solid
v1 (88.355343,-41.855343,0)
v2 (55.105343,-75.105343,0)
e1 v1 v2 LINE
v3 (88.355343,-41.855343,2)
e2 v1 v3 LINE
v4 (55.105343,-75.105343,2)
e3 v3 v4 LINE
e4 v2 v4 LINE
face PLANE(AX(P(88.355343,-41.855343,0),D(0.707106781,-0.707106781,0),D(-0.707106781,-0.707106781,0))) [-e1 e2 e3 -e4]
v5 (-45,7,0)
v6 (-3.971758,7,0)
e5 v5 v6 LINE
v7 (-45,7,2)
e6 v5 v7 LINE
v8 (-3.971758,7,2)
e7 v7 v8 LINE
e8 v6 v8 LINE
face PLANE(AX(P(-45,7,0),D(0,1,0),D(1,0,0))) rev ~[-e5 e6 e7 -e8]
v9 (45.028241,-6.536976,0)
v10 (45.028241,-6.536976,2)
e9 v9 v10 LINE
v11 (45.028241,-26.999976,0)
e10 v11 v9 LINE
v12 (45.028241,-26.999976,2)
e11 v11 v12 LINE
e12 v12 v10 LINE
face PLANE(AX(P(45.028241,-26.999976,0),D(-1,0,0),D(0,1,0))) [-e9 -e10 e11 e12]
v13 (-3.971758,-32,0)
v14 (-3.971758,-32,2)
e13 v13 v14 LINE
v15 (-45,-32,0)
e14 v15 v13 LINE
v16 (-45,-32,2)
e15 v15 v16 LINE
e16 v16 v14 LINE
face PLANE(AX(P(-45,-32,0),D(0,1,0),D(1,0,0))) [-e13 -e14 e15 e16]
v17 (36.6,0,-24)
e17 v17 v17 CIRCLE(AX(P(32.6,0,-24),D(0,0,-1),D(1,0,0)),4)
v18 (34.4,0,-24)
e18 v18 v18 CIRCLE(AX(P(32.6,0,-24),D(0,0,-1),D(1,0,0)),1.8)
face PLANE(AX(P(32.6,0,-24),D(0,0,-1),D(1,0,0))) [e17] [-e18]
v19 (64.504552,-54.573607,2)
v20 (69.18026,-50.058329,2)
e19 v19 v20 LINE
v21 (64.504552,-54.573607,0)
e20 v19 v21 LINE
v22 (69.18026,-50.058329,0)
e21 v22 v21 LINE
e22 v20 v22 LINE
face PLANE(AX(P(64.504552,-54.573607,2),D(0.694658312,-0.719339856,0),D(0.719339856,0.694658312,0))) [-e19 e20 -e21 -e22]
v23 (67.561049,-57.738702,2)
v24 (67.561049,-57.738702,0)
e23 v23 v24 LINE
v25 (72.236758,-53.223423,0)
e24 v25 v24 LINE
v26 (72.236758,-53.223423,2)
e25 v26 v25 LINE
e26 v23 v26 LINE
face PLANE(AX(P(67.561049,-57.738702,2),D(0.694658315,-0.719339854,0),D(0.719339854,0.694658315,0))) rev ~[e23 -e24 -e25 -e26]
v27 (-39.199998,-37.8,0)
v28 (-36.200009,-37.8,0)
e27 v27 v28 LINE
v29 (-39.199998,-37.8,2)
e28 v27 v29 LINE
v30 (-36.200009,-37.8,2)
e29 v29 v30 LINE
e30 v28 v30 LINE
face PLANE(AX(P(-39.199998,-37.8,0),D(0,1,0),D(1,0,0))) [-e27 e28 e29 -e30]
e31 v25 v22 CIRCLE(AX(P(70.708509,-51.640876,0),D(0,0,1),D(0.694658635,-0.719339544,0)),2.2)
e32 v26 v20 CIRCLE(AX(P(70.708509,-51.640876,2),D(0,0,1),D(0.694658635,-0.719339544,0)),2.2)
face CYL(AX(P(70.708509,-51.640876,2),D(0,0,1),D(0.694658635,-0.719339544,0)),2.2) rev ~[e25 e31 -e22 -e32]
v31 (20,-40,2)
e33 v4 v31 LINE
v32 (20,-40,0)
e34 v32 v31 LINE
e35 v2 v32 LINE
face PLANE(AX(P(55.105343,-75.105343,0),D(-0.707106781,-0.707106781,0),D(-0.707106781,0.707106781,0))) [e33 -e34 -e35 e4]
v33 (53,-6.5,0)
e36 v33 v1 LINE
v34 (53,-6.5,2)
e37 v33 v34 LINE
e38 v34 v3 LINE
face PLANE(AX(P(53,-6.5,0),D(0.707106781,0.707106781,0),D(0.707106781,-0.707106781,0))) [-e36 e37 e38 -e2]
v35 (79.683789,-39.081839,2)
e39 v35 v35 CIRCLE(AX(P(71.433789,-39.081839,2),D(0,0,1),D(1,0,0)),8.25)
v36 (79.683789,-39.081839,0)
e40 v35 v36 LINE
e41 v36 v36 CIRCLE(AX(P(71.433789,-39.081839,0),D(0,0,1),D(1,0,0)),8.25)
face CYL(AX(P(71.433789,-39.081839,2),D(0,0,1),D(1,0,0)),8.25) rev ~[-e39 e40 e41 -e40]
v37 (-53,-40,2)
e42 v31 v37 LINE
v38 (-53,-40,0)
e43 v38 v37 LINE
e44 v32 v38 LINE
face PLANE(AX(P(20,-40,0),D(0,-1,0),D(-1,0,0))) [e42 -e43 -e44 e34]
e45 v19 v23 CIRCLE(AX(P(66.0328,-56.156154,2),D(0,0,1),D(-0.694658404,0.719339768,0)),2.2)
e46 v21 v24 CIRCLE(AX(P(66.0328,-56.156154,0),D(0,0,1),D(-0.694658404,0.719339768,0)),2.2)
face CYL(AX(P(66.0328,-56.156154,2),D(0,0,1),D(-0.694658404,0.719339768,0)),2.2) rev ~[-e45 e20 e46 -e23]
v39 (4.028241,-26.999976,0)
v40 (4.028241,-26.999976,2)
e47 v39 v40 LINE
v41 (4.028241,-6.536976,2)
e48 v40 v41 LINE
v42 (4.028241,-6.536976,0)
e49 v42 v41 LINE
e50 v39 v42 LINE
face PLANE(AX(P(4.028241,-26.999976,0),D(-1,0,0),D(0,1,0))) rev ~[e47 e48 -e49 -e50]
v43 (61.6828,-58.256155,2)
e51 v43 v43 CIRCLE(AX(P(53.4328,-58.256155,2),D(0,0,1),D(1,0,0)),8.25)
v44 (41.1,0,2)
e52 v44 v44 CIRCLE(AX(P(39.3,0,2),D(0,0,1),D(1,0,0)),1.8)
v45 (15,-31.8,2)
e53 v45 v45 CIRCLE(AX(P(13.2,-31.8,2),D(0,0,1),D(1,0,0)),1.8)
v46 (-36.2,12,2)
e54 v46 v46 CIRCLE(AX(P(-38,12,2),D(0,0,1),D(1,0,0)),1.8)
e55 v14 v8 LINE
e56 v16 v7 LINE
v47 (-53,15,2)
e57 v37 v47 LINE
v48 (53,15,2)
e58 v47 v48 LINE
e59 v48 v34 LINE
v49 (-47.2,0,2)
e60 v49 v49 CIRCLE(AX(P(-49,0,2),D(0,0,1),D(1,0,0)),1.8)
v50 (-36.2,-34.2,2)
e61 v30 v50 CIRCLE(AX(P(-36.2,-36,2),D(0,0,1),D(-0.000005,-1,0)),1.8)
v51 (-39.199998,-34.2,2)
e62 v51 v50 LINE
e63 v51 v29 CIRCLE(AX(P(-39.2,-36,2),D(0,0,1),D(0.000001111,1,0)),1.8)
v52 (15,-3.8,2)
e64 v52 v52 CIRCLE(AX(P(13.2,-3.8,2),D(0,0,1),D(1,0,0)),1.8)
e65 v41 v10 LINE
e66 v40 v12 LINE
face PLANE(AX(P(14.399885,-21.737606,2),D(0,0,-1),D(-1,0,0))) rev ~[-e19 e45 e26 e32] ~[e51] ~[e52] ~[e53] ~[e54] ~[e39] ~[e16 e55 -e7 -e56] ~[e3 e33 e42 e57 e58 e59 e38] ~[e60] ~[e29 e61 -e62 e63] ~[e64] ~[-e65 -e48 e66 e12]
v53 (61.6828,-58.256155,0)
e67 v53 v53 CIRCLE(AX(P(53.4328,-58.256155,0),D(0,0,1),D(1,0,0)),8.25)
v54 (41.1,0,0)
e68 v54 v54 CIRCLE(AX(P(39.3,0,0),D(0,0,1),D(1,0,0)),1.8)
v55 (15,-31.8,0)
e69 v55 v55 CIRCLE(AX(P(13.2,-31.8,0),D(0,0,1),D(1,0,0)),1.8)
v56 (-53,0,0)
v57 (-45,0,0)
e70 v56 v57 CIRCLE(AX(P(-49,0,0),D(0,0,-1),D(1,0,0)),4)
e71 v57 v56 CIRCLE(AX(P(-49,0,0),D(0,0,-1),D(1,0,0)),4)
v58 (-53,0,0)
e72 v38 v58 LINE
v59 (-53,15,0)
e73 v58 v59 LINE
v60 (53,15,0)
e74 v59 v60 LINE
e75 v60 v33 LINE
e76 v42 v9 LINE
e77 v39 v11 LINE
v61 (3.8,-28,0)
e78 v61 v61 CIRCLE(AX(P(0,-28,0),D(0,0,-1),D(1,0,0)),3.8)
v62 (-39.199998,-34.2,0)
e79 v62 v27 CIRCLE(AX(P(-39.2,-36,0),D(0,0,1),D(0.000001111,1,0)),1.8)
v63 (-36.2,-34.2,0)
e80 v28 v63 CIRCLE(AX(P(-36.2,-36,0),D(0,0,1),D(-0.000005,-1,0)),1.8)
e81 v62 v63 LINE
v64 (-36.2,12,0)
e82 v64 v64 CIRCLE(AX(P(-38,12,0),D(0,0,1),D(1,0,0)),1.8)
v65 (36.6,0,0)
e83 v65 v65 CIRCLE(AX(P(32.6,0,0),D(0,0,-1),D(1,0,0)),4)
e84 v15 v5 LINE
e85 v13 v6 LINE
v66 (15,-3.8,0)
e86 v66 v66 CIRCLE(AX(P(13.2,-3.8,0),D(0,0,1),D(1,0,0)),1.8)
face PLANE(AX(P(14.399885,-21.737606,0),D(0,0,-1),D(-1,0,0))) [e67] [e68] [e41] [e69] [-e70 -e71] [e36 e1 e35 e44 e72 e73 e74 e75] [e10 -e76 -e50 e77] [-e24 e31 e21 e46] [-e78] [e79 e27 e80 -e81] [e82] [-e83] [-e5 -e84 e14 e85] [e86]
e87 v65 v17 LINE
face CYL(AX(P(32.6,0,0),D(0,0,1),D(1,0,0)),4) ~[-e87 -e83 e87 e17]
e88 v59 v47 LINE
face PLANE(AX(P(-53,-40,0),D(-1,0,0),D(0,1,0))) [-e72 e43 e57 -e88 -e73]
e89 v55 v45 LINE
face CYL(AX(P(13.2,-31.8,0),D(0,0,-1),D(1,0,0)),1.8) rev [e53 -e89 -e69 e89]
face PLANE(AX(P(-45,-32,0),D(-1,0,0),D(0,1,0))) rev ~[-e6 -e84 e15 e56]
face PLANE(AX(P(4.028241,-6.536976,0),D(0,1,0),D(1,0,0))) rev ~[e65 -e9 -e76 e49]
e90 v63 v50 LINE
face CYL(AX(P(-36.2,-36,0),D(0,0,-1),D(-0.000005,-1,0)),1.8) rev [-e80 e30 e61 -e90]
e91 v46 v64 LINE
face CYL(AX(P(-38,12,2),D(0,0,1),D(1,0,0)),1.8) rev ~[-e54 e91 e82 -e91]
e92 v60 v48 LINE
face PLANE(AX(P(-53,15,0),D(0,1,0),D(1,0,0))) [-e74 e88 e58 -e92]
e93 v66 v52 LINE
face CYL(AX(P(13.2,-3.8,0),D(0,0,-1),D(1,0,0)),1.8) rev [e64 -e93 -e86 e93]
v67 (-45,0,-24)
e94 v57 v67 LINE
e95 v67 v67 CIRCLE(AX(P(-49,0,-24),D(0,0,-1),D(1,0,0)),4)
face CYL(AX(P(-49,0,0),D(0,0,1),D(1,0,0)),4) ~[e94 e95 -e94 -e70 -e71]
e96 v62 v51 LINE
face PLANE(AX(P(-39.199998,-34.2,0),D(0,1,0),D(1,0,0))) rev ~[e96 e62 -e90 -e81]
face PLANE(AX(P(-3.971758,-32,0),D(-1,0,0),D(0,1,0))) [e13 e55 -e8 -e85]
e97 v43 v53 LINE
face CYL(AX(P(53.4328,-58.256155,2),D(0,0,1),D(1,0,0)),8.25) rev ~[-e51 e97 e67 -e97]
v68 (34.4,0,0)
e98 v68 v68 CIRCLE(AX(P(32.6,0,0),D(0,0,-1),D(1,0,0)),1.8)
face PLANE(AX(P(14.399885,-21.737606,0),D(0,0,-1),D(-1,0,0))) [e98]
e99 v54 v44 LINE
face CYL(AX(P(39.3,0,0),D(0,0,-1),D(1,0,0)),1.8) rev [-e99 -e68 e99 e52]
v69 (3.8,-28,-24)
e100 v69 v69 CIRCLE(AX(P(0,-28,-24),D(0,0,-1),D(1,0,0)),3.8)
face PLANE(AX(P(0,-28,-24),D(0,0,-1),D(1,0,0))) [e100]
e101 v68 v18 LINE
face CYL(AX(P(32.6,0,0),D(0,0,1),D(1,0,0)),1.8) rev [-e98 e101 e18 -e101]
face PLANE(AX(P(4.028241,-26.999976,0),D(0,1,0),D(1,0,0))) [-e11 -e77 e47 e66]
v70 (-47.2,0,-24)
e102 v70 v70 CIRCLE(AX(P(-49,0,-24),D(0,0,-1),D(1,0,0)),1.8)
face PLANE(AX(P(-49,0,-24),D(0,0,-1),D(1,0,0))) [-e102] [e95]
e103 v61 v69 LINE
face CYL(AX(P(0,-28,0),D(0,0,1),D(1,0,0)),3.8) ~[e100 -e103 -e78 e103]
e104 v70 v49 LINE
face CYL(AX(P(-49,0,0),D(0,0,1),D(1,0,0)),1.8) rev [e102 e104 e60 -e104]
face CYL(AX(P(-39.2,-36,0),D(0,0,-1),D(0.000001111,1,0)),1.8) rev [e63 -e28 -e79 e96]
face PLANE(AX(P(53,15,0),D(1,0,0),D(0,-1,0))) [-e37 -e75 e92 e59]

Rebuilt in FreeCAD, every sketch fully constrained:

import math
import FreeCAD as App
import Part
import Sketcher
from FreeCAD import Vector
Q = App.Units.Quantity

doc = App.newDocument("Part")
params = doc.addObject("Spreadsheet::Sheet", "Params")
for row, (alias, value) in enumerate([
    ("sketch1_diameter", "3.6 mm"),
    ("sketch1_width", "106 mm"),
    ("sketch1_width2", "73 mm"),
    ("sketch1_width3", "41 mm"),
    ("sketch1_height", "55 mm"),
    ("pad1_length", "2 mm"),
    ("sketch2_diameter", "8 mm"),
    ("sketch2_diameter2", "7.6 mm"),
    ("sketch2_diameter3", "3.6 mm"),
    ("pad2_length", "24 mm"),
    ("sketch3_diameter", "16.5 mm"),
    ("sketch3_radius", "2.2 mm"),
    ("sketch3_length", "6.5 mm"),
    ("pocket1_length", "5 mm"),
    ("sketch4_diameter", "3.6 mm"),
    ("pocket2_length", "5 mm"),
], start=1):
    params.set(f"A{row}", alias)
    params.set(f"B{row}", "=" + value)
    params.setAlias(f"B{row}", alias)

body = doc.addObject("PartDesign::Body", "Body")

# Sketch on XY plane
sketch1 = body.newObject("Sketcher::SketchObject", "Sketch")
sketch1.AttachmentSupport = (doc.getObject("XY_Plane"), [""])
sketch1.MapMode = "FlatFace"
sketch1.addGeometry(Part.LineSegment(Vector(53, 15, 0), Vector(-53, 15, 0)), False)
sketch1.addGeometry(Part.LineSegment(Vector(-53, 15, 0), Vector(-53, -40, 0)), False)
sketch1.addGeometry(Part.LineSegment(Vector(-53, -40, 0), Vector(20, -40, 0)), False)
sketch1.addGeometry(Part.LineSegment(Vector(20, -40, 0), Vector(55.1, -75.1, 0)), False)
sketch1.addGeometry(Part.LineSegment(Vector(55.1, -75.1, 0), Vector(88.4, -41.9, 0)), False)
sketch1.addGeometry(Part.LineSegment(Vector(88.4, -41.9, 0), Vector(53, -6.5, 0)), False)
sketch1.addGeometry(Part.LineSegment(Vector(53, -6.5, 0), Vector(53, 15, 0)), False)
sketch1.addGeometry(Part.Circle(Vector(13.2, -31.8, 0), Vector(0, 0, 1), 1.8), False)
sketch1.addGeometry(Part.LineSegment(Vector(4, -27, 0), Vector(4, -6.5, 0)), False)
sketch1.addGeometry(Part.LineSegment(Vector(4, -6.5, 0), Vector(45, -6.5, 0)), False)
sketch1.addGeometry(Part.LineSegment(Vector(45, -6.5, 0), Vector(45, -27, 0)), False)
sketch1.addGeometry(Part.LineSegment(Vector(45, -27, 0), Vector(4, -27, 0)), False)
sketch1.addGeometry(Part.LineSegment(Vector(-39.2, -34.2, 0), Vector(-36.2, -34.2, 0)), False)
sketch1.addGeometry(Part.ArcOfCircle(Part.Circle(Vector(-36.2, -36, 0), Vector(0, 0, 1), 1.8), math.radians(-90), math.radians(90)), False)
sketch1.addGeometry(Part.LineSegment(Vector(-36.2, -37.8, 0), Vector(-39.2, -37.8, 0)), False)
sketch1.addGeometry(Part.ArcOfCircle(Part.Circle(Vector(-39.2, -36, 0), Vector(0, 0, 1), 1.8), math.radians(90), math.radians(270)), False)
sketch1.addGeometry(Part.Circle(Vector(39.3, 0, 0), Vector(0, 0, 1), 1.8), False)
sketch1.addGeometry(Part.Circle(Vector(13.2, -3.8, 0), Vector(0, 0, 1), 1.8), False)
sketch1.addGeometry(Part.LineSegment(Vector(-45, -32, 0), Vector(-45, 7, 0)), False)
sketch1.addGeometry(Part.LineSegment(Vector(-45, 7, 0), Vector(-4, 7, 0)), False)
sketch1.addGeometry(Part.LineSegment(Vector(-4, 7, 0), Vector(-4, -32, 0)), False)
sketch1.addGeometry(Part.LineSegment(Vector(-4, -32, 0), Vector(-45, -32, 0)), False)
sketch1.addGeometry(Part.Circle(Vector(-49, 0, 0), Vector(0, 0, 1), 1.8), False)
sketch1.addConstraint(Sketcher.Constraint("Coincident", 0, 2, 1, 1))
sketch1.addConstraint(Sketcher.Constraint("Coincident", 1, 2, 2, 1))
sketch1.addConstraint(Sketcher.Constraint("Coincident", 2, 2, 3, 1))
sketch1.addConstraint(Sketcher.Constraint("Coincident", 3, 2, 4, 1))
sketch1.addConstraint(Sketcher.Constraint("Coincident", 4, 2, 5, 1))
sketch1.addConstraint(Sketcher.Constraint("Coincident", 5, 2, 6, 1))
sketch1.addConstraint(Sketcher.Constraint("Coincident", 6, 2, 0, 1))
sketch1.addConstraint(Sketcher.Constraint("Coincident", 8, 2, 9, 1))
sketch1.addConstraint(Sketcher.Constraint("Coincident", 9, 2, 10, 1))
sketch1.addConstraint(Sketcher.Constraint("Coincident", 10, 2, 11, 1))
sketch1.addConstraint(Sketcher.Constraint("Coincident", 11, 2, 8, 1))
sketch1.addConstraint(Sketcher.Constraint("Tangent", 12, 2, 13, 2))
sketch1.addConstraint(Sketcher.Constraint("Coincident", 13, 1, 14, 1))
sketch1.addConstraint(Sketcher.Constraint("Tangent", 14, 2, 15, 2))
sketch1.addConstraint(Sketcher.Constraint("Tangent", 15, 1, 12, 1))
sketch1.addConstraint(Sketcher.Constraint("Coincident", 18, 2, 19, 1))
sketch1.addConstraint(Sketcher.Constraint("Coincident", 19, 2, 20, 1))
sketch1.addConstraint(Sketcher.Constraint("Coincident", 20, 2, 21, 1))
sketch1.addConstraint(Sketcher.Constraint("Coincident", 21, 2, 18, 1))
sketch1.addConstraint(Sketcher.Constraint("Horizontal", 0))
sketch1.addConstraint(Sketcher.Constraint("Vertical", 1))
sketch1.addConstraint(Sketcher.Constraint("Horizontal", 2))
sketch1.addConstraint(Sketcher.Constraint("Vertical", 6))
sketch1.addConstraint(Sketcher.Constraint("Vertical", 8))
sketch1.addConstraint(Sketcher.Constraint("Horizontal", 9))
sketch1.addConstraint(Sketcher.Constraint("Vertical", 10))
sketch1.addConstraint(Sketcher.Constraint("Horizontal", 11))
sketch1.addConstraint(Sketcher.Constraint("Horizontal", 12))
sketch1.addConstraint(Sketcher.Constraint("Horizontal", 14))
sketch1.addConstraint(Sketcher.Constraint("Vertical", 18))
sketch1.addConstraint(Sketcher.Constraint("Horizontal", 19))
sketch1.addConstraint(Sketcher.Constraint("Vertical", 20))
sketch1.addConstraint(Sketcher.Constraint("Horizontal", 21))
sketch1.addConstraint(Sketcher.Constraint("Equal", 7, 13))
sketch1.addConstraint(Sketcher.Constraint("Equal", 15, 16))
sketch1.addConstraint(Sketcher.Constraint("Equal", 16, 17))
sketch1.addConstraint(Sketcher.Constraint("Equal", 17, 22))
sketch1.addConstraint(Sketcher.Constraint("PointOnObject", 16, 3, -1))
sketch1.addConstraint(Sketcher.Constraint("PointOnObject", 22, 3, -1))
sketch1.addConstraint(Sketcher.Constraint("Perpendicular", 3, 4))
sketch1.addConstraint(Sketcher.Constraint("Perpendicular", 4, 5))
sketch1.addConstraint(Sketcher.Constraint("Vertical", 7, 3, 17, 3))
sketch1.addConstraint(Sketcher.Constraint("Diameter", 7, 3.6))
sketch1.addConstraint(Sketcher.Constraint("DistanceX", 0, 2, 0, 1, 106.0))
sketch1.addConstraint(Sketcher.Constraint("DistanceX", 2, 1, 2, 2, 73.0))
sketch1.addConstraint(Sketcher.Constraint("DistanceX", 9, 1, 9, 2, 41.0))
sketch1.addConstraint(Sketcher.Constraint("DistanceY", 1, 2, 1, 1, 55.0))
sketch1.addConstraint(Sketcher.Constraint("DistanceY", 18, 1, 18, 2, 39.0))
sketch1.addConstraint(Sketcher.Constraint("Angle", 3, Q("-45 deg")))
sketch1.addConstraint(Sketcher.Constraint("DistanceY", 6, 1, 6, 2, 21.5))
sketch1.addConstraint(Sketcher.Constraint("DistanceY", 13, 3, -1, 1, 36.0))
sketch1.addConstraint(Sketcher.Constraint("DistanceX", 22, 3, -1, 1, 49.0))
sketch1.addConstraint(Sketcher.Constraint("DistanceX", 0, 2, -1, 1, 53.0))
sketch1.addConstraint(Sketcher.Constraint("DistanceY", -1, 1, 0, 2, 15.0))
sketch1.addConstraint(Sketcher.Constraint("DistanceX", 18, 2, -1, 1, 45.0))
sketch1.addConstraint(Sketcher.Constraint("DistanceY", -1, 1, 18, 2, 7.0))
sketch1.addConstraint(Sketcher.Constraint("DistanceX", 15, 3, 13, 3, 3.0))
sketch1.addConstraint(Sketcher.Constraint("DistanceY", 7, 3, 17, 3, 28.0))
sketch1.addConstraint(Sketcher.Constraint("DistanceX", 19, 2, 8, 2, 8.0))
sketch1.addConstraint(Sketcher.Constraint("DistanceX", -1, 1, 7, 3, 13.2))
sketch1.addConstraint(Sketcher.Constraint("DistanceY", 7, 3, -1, 1, 31.8))
sketch1.addConstraint(Sketcher.Constraint("DistanceX", 13, 3, -1, 1, 36.2))
sketch1.addConstraint(Sketcher.Constraint("DistanceX", -1, 1, 16, 3, 39.3))
sketch1.addConstraint(Sketcher.Constraint("DistanceY", 8, 1, 8, 2, 20.463))
sketch1.addConstraint(Sketcher.Constraint("DistanceX", 14, 2, 14, 1, 2.999989))
sketch1.addConstraint(Sketcher.Constraint("DistanceX", 19, 1, 19, 2, 41.028241))
sketch1.addConstraint(Sketcher.Constraint("Distance", 3, 49.646452))
sketch1.addConstraint(Sketcher.Constraint("DistanceY", 8, 2, -1, 1, 6.536976))
sketch1.setExpression("Constraints[42]", "Params.sketch1_diameter")
sketch1.setExpression("Constraints[43]", "Params.sketch1_width")
sketch1.setExpression("Constraints[44]", "Params.sketch1_width2")
sketch1.setExpression("Constraints[45]", "Params.sketch1_width3")
sketch1.setExpression("Constraints[46]", "Params.sketch1_height")
pad1 = body.newObject("PartDesign::Pad", "Pad")
pad1.Profile = sketch1
pad1.setExpression("Length", "Params.pad1_length")

# Sketch on XY plane
sketch2 = body.newObject("Sketcher::SketchObject", "Sketch001")
sketch2.AttachmentSupport = (doc.getObject("XY_Plane"), [""])
sketch2.MapMode = "FlatFace"
sketch2.addGeometry(Part.Circle(Vector(0, -28, 0), Vector(0, 0, 1), 3.8), False)
sketch2.addGeometry(Part.Circle(Vector(-49, 0, 0), Vector(0, 0, 1), 4), False)
sketch2.addGeometry(Part.Circle(Vector(-49, 0, 0), Vector(0, 0, 1), 1.8), False)
sketch2.addGeometry(Part.Circle(Vector(32.6, 0, 0), Vector(0, 0, 1), 4), False)
sketch2.addGeometry(Part.Circle(Vector(32.6, 0, 0), Vector(0, 0, 1), 1.8), False)
sketch2.addConstraint(Sketcher.Constraint("Coincident", 2, 3, 1, 3))
sketch2.addConstraint(Sketcher.Constraint("Coincident", 4, 3, 3, 3))
sketch2.addConstraint(Sketcher.Constraint("Equal", 1, 3))
sketch2.addConstraint(Sketcher.Constraint("Equal", 2, 4))
sketch2.addConstraint(Sketcher.Constraint("PointOnObject", 0, 3, -2))
sketch2.addConstraint(Sketcher.Constraint("PointOnObject", 1, 3, -1))
sketch2.addConstraint(Sketcher.Constraint("PointOnObject", 3, 3, -1))
sketch2.addConstraint(Sketcher.Constraint("Diameter", 1, 8.0))
sketch2.addConstraint(Sketcher.Constraint("Diameter", 0, 7.6))
sketch2.addConstraint(Sketcher.Constraint("Diameter", 2, 3.6))
sketch2.addConstraint(Sketcher.Constraint("DistanceY", 0, 3, -1, 1, 28.0))
sketch2.addConstraint(Sketcher.Constraint("DistanceX", 1, 3, -1, 1, 49.0))
sketch2.addConstraint(Sketcher.Constraint("DistanceX", -1, 1, 3, 3, 32.6))
sketch2.setExpression("Constraints[7]", "Params.sketch2_diameter")
sketch2.setExpression("Constraints[8]", "Params.sketch2_diameter2")
sketch2.setExpression("Constraints[9]", "Params.sketch2_diameter3")
pad2 = body.newObject("PartDesign::Pad", "Pad001")
pad2.Profile = sketch2
pad2.setExpression("Length", "Params.pad2_length")
pad2.Reversed = True

# Sketch on XY plane
sketch3 = body.newObject("Sketcher::SketchObject", "Sketch002")
sketch3.AttachmentSupport = (doc.getObject("XY_Plane"), [""])
sketch3.MapMode = "FlatFace"
sketch3.AttachmentOffset = App.Placement(Vector(0, 0, 2), App.Rotation())
sketch3.addGeometry(Part.Circle(Vector(53.4, -58.3, 0), Vector(0, 0, 1), 8.2), False)
sketch3.addGeometry(Part.Circle(Vector(71.4, -39.1, 0), Vector(0, 0, 1), 8.2), False)
sketch3.addGeometry(Part.ArcOfCircle(Part.Circle(Vector(66, -56.2, 0), Vector(0, 0, 1), 2.2), math.radians(134), math.radians(314)), False)
sketch3.addGeometry(Part.LineSegment(Vector(67.6, -57.7, 0), Vector(72.2, -53.2, 0)), False)
sketch3.addGeometry(Part.ArcOfCircle(Part.Circle(Vector(70.7, -51.6, 0), Vector(0, 0, 1), 2.2), math.radians(-46), math.radians(134)), False)
sketch3.addGeometry(Part.LineSegment(Vector(69.2, -50.1, 0), Vector(64.5, -54.6, 0)), False)
sketch3.addConstraint(Sketcher.Constraint("Tangent", 2, 2, 3, 1))
sketch3.addConstraint(Sketcher.Constraint("Tangent", 3, 2, 4, 1))
sketch3.addConstraint(Sketcher.Constraint("Tangent", 4, 2, 5, 1))
sketch3.addConstraint(Sketcher.Constraint("Tangent", 5, 2, 2, 1))
sketch3.addConstraint(Sketcher.Constraint("Equal", 0, 1))
sketch3.addConstraint(Sketcher.Constraint("Equal", 2, 4))
sketch3.addConstraint(Sketcher.Constraint("Diameter", 0, 16.5))
sketch3.addConstraint(Sketcher.Constraint("Radius", 2, 2.2))
sketch3.addConstraint(Sketcher.Constraint("Angle", 3, Q("43.999996 deg")))
sketch3.addConstraint(Sketcher.Constraint("Distance", 3, 6.5))
sketch3.addConstraint(Sketcher.Constraint("DistanceX", 0, 3, 2, 3, 12.6))
sketch3.addConstraint(Sketcher.Constraint("DistanceY", 0, 3, 2, 3, 2.100001))
sketch3.addConstraint(Sketcher.Constraint("DistanceX", -1, 1, 0, 3, 53.4328))
sketch3.addConstraint(Sketcher.Constraint("DistanceY", 2, 2, -1, 1, 57.738702))
sketch3.addConstraint(Sketcher.Constraint("DistanceX", -1, 1, 1, 3, 71.433789))
sketch3.addConstraint(Sketcher.Constraint("DistanceY", 1, 3, -1, 1, 39.081839))
sketch3.setExpression("Constraints[6]", "Params.sketch3_diameter")
sketch3.setExpression("Constraints[7]", "Params.sketch3_radius")
sketch3.setExpression("Constraints[9]", "Params.sketch3_length")
pocket1 = body.newObject("PartDesign::Pocket", "Pocket")
pocket1.Profile = sketch3
pocket1.setExpression("Length", "Params.pocket1_length")

# Sketch on XY plane
sketch4 = body.newObject("Sketcher::SketchObject", "Sketch003")
sketch4.AttachmentSupport = (doc.getObject("XY_Plane"), [""])
sketch4.MapMode = "FlatFace"
sketch4.AttachmentOffset = App.Placement(Vector(0, 0, 2), App.Rotation())
sketch4.addGeometry(Part.Circle(Vector(-38, 12, 0), Vector(0, 0, 1), 1.8), False)
sketch4.addConstraint(Sketcher.Constraint("Diameter", 0, 3.6))
sketch4.addConstraint(Sketcher.Constraint("DistanceX", 0, 3, -1, 1, 38.0))
sketch4.addConstraint(Sketcher.Constraint("DistanceY", -1, 1, 0, 3, 12.0))
sketch4.setExpression("Constraints[0]", "Params.sketch4_diameter")
pocket2 = body.newObject("PartDesign::Pocket", "Pocket001")
pocket2.Profile = sketch4
pocket2.setExpression("Length", "Params.pocket2_length")

doc.recompute()
